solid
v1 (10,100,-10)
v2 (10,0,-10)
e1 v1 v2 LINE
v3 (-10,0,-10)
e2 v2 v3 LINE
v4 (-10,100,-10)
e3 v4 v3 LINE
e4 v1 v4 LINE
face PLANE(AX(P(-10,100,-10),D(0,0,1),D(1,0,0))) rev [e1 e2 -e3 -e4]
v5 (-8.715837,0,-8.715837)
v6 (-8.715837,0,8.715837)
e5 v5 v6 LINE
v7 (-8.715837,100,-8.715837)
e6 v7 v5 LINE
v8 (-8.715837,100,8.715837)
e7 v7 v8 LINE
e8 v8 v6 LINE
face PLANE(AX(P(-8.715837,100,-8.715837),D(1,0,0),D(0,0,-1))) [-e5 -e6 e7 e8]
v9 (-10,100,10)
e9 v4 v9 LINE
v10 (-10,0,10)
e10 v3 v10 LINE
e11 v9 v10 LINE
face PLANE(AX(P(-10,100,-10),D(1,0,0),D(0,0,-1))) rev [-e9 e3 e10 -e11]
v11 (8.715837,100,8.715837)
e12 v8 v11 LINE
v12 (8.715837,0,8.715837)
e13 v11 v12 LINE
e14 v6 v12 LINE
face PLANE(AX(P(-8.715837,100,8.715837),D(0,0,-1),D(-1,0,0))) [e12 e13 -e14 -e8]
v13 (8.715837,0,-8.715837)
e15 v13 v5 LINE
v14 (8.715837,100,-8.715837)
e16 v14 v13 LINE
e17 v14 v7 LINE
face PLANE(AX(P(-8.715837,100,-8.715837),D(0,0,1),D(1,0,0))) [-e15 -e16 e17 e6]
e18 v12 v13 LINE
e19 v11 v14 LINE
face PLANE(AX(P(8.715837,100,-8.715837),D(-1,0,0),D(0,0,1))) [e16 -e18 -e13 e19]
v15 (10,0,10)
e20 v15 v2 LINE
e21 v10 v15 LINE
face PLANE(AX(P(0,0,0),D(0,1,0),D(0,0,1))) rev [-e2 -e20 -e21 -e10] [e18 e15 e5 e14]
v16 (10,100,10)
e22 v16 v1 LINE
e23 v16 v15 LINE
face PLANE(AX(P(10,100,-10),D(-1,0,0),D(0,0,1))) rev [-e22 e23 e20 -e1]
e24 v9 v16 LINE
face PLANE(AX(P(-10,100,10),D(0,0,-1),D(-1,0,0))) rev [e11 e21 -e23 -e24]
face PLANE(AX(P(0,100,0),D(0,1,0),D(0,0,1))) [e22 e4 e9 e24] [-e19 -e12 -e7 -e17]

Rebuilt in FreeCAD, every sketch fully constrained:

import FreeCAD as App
import Part
import Sketcher

V = App.Vector
Q = App.Units.Quantity


def add_polygon(sketch, points):
    """Adds a closed chain of lines whose ends are joined by coincident constraints."""
    first, n = sketch.GeometryCount, len(points)
    for a, b in zip(points, points[1:] + points[:1]):
        sketch.addGeometry(Part.LineSegment(App.Vector(*a, 0), App.Vector(*b, 0)), False)
    for i in range(n):
        sketch.addConstraint(Sketcher.Constraint("Coincident", first + i, 2, first + (i + 1) % n, 1))

doc = App.newDocument("Part")
body = doc.addObject("PartDesign::Body", "Body")

# Sketch on XZ plane
sketch1 = body.newObject("Sketcher::SketchObject", "Sketch")
sketch1.AttachmentSupport = (doc.getObject("XZ_Plane"), [""])
sketch1.MapMode = "FlatFace"
add_polygon(sketch1, [(-10, -10), (-10, 10), (10, 10), (10, -10)])  # lines 0-3
add_polygon(sketch1, [(9, 9), (-9, 9), (-9, -9), (9, -9)])  # lines 4-7
sketch1.addConstraint([
    Sketcher.Constraint("Vertical", 0),
    Sketcher.Constraint("Horizontal", 1),
    Sketcher.Constraint("Vertical", 2),
    Sketcher.Constraint("Horizontal", 3),
    Sketcher.Constraint("Horizontal", 4),
    Sketcher.Constraint("Vertical", 5),
    Sketcher.Constraint("Horizontal", 6),
    Sketcher.Constraint("Vertical", 7),
    Sketcher.Constraint("Symmetric", 0, 2, 2, 2, -1, 1),
    Sketcher.Constraint("Symmetric", 4, 2, 6, 2, -1, 1),
    Sketcher.Constraint("Equal", 3, 0),
    Sketcher.Constraint("Equal", 6, 5),
    Sketcher.Constraint("DistanceX", 1, 1, 1, 2, Q("20 mm")),
    Sketcher.Constraint("DistanceX", 4, 2, 4, 1, Q("17.431675 mm")),
])
pad1 = body.newObject("PartDesign::Pad", "Pad")
pad1.Profile = sketch1
pad1.Length = 100
pad1.Reversed = True

doc.recompute()
